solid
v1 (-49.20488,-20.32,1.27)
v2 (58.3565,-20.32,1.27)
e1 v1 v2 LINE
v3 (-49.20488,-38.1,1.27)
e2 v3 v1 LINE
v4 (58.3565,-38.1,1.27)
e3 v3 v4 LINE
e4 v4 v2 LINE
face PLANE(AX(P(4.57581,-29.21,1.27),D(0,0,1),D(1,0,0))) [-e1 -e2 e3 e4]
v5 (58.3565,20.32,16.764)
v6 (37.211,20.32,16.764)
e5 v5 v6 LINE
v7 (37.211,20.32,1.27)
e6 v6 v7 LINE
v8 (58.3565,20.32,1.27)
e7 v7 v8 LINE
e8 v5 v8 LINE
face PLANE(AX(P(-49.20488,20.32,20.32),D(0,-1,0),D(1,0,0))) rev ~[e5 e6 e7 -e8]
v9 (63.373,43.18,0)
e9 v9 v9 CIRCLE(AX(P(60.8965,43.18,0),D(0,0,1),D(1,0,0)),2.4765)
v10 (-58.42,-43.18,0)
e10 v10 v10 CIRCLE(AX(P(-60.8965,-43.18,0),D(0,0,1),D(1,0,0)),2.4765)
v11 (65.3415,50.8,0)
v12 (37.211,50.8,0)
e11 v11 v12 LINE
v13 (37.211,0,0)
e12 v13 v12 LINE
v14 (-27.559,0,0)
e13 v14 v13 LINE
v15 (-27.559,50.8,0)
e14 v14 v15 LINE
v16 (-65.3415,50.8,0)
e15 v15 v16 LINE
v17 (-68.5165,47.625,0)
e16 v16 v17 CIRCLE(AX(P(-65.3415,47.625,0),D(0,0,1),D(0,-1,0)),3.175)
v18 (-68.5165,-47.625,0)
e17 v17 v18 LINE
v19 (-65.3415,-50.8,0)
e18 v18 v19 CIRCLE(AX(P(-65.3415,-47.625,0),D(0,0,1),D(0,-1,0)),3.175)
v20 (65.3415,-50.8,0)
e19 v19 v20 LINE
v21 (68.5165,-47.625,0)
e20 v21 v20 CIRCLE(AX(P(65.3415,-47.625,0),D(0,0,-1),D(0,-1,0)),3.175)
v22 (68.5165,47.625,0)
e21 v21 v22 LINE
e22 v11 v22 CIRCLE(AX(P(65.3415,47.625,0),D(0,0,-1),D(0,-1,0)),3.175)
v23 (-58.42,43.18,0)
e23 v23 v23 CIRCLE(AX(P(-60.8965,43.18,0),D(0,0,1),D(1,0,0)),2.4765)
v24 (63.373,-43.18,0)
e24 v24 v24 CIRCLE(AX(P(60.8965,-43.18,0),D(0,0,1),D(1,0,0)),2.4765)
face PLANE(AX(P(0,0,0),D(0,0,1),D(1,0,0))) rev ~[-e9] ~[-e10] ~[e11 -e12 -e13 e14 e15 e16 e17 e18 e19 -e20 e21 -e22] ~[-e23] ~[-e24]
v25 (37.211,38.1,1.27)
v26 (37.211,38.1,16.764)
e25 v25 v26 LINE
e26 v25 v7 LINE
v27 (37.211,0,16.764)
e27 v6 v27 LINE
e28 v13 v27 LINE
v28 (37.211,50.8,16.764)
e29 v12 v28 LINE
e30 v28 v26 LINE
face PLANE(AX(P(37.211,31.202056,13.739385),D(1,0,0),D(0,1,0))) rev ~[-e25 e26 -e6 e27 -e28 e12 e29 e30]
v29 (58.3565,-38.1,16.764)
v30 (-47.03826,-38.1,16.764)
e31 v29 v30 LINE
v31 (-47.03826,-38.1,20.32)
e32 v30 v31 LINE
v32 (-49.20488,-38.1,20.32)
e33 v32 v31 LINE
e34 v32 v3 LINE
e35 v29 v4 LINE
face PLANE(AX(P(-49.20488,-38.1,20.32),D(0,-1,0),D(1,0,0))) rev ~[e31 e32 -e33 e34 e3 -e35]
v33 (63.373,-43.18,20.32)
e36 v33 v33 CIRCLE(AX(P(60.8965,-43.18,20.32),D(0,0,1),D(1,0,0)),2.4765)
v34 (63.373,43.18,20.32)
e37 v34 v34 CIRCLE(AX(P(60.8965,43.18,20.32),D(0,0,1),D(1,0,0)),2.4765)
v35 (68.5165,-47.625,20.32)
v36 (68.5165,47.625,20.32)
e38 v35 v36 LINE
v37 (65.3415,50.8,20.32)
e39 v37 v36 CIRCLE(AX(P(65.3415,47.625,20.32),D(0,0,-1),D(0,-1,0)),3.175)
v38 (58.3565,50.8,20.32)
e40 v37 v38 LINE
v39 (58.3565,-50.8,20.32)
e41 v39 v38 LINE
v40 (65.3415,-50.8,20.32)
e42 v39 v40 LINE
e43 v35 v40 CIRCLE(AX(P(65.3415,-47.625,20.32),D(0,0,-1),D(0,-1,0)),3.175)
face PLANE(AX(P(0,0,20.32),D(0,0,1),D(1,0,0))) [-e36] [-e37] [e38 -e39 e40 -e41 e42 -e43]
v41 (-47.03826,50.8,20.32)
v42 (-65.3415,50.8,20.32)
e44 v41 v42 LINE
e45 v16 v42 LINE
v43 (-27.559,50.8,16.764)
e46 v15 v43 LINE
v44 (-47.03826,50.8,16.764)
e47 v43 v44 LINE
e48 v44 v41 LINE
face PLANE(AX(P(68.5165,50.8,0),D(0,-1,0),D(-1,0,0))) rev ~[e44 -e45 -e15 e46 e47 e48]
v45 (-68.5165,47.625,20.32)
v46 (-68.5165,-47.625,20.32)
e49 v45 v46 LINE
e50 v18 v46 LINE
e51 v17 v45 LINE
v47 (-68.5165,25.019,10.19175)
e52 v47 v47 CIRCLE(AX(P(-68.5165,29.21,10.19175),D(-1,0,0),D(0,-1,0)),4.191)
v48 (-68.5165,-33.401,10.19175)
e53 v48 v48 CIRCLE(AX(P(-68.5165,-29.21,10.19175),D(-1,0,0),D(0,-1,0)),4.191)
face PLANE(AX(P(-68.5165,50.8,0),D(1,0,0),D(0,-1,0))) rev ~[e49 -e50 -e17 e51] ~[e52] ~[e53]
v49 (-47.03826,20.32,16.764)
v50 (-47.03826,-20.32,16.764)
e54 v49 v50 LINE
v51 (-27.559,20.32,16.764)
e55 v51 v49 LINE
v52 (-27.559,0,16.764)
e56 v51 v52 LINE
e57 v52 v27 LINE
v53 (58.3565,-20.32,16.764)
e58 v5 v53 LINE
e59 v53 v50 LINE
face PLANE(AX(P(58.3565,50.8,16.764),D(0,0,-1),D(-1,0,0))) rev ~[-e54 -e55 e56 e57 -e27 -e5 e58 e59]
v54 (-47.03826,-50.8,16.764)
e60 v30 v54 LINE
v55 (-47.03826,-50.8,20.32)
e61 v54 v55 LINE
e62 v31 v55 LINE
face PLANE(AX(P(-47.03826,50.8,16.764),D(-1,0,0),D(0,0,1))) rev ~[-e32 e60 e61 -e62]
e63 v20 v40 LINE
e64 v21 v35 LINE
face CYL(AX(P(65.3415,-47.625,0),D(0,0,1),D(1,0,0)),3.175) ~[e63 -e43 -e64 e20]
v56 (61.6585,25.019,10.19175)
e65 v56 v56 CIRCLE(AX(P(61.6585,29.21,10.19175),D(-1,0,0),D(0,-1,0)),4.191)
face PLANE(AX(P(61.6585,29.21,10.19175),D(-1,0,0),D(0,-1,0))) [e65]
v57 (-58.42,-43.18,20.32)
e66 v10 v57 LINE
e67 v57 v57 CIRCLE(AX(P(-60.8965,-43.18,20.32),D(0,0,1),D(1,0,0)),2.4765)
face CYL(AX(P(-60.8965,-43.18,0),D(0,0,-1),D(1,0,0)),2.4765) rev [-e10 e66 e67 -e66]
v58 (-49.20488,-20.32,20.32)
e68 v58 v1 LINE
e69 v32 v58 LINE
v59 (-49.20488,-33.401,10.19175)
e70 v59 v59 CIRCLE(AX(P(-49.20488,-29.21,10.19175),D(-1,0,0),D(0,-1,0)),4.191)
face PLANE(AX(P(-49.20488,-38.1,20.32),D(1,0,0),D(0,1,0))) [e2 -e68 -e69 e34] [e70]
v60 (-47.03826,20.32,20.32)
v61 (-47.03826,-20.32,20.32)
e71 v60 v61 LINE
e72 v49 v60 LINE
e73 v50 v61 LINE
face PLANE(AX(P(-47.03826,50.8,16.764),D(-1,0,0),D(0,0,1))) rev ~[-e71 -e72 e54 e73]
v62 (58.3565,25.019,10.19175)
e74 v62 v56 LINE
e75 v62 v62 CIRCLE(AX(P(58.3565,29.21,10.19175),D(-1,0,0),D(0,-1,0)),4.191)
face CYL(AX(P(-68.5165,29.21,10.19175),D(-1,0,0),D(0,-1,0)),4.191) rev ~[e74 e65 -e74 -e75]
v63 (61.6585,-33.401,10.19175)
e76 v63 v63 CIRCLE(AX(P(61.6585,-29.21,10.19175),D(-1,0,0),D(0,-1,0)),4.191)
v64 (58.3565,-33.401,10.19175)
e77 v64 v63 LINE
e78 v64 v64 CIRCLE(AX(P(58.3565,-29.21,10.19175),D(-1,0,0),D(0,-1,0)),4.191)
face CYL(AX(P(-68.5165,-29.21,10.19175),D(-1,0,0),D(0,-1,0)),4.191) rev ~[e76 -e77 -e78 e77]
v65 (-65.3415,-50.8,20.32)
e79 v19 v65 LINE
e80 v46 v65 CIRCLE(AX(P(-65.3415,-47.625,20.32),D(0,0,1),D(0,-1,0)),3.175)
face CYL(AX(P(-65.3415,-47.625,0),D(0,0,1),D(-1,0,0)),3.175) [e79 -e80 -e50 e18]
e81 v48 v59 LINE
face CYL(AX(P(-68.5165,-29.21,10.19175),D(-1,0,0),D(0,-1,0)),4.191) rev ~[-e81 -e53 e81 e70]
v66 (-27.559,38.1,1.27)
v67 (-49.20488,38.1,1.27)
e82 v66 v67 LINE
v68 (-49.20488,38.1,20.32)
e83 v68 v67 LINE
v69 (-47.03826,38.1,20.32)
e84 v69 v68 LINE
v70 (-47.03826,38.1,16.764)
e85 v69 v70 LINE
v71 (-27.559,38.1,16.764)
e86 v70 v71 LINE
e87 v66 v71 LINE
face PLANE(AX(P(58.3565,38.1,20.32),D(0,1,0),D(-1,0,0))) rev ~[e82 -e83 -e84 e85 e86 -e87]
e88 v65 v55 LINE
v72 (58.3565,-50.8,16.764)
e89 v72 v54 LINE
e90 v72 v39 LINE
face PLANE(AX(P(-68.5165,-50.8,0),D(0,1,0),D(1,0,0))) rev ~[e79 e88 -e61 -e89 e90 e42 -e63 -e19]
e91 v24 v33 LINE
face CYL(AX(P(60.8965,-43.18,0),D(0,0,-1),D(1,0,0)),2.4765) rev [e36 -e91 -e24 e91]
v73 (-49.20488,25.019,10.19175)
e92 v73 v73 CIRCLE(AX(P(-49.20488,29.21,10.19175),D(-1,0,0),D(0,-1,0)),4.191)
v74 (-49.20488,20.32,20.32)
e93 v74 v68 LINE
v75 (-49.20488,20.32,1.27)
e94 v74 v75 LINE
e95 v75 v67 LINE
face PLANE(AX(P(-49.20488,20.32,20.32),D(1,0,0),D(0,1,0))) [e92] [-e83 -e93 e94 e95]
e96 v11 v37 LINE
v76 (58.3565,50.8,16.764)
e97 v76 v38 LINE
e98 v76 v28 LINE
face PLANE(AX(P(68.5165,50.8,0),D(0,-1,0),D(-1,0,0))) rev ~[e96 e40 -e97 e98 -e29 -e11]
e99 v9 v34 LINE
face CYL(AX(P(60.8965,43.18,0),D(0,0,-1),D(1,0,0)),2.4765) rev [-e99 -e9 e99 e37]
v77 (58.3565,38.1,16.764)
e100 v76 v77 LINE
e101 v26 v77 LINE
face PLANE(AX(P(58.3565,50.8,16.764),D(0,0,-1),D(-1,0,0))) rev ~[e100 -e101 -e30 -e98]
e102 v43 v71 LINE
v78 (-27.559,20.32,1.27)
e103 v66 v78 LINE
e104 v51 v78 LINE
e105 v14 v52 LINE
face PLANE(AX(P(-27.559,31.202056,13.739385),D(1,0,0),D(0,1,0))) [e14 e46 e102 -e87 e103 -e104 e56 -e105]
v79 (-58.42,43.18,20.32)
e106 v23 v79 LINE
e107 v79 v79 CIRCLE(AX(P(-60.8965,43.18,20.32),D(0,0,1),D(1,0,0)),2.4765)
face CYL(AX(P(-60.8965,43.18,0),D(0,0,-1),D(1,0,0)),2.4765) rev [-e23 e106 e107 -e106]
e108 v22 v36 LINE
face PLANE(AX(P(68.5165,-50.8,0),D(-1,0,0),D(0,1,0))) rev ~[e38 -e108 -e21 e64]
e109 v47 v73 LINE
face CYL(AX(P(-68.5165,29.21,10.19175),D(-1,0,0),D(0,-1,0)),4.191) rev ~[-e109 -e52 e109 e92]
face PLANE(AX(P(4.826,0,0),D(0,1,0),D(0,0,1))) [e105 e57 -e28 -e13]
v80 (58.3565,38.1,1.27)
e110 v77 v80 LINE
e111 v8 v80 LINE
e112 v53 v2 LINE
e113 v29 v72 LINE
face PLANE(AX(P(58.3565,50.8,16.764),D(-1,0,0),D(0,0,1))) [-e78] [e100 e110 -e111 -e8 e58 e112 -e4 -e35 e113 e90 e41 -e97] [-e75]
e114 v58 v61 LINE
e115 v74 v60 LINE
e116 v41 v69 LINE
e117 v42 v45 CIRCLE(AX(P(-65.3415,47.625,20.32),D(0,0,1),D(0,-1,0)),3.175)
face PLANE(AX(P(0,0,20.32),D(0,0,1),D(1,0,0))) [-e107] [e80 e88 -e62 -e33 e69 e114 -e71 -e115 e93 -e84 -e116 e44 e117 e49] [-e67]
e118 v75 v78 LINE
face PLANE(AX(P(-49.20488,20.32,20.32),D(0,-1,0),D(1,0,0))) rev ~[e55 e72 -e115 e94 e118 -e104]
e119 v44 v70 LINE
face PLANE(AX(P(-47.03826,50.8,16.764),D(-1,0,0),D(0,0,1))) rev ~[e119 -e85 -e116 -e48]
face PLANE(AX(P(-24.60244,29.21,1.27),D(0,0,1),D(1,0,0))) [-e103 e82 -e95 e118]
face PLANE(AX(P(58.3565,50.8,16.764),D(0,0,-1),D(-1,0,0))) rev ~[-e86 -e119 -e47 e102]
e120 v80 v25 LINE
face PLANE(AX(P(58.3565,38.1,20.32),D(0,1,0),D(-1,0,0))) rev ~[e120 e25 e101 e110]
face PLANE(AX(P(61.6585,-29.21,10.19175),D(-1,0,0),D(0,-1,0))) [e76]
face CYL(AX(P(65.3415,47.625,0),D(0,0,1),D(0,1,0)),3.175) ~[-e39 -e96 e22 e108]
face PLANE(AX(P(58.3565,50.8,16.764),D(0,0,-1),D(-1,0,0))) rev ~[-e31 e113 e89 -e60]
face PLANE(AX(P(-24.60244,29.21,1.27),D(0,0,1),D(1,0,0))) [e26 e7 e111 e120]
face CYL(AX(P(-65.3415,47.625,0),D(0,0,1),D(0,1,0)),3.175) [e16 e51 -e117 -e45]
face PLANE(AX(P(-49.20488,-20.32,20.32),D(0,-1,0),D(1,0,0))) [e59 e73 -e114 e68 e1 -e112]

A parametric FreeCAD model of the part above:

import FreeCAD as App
import Part
import Sketcher

V = App.Vector
Q = App.Units.Quantity


def edges_at(feature, points):
    """Names of the edges that pass closest to the given points."""
    edges = feature.Shape.Edges
    near = lambda p: min(range(len(edges)), key=lambda i: edges[i].distToShape(Part.Vertex(*p))[0])
    return sorted({f"Edge{near(p) + 1}" for p in points})


def add_polygon(sketch, points):
    """Adds a closed chain of lines whose ends are joined by coincident constraints."""
    first, n = sketch.GeometryCount, len(points)
    for a, b in zip(points, points[1:] + points[:1]):
        sketch.addGeometry(Part.LineSegment(App.Vector(*a, 0), App.Vector(*b, 0)), False)
    for i in range(n):
        sketch.addConstraint(Sketcher.Constraint("Coincident", first + i, 2, first + (i + 1) % n, 1))

doc = App.newDocument("Part")
body = doc.addObject("PartDesign::Body", "Body")

sketch1 = body.newObject("Sketcher::SketchObject", "Sketch")
sketch1.AttachmentSupport = (doc.getObject("XY_Plane"), [""])
sketch1.MapMode = "FlatFace"
add_polygon(sketch1, [(68.5, 50.8), (-68.5, 50.8), (-68.5, -50.8), (68.5, -50.8)])
sketch1.addGeometry(Part.Circle(V(-60.9, -43.2, 0), V(0, 0, 1), 2.5), False)
sketch1.addGeometry(Part.Circle(V(60.9, -43.2, 0), V(0, 0, 1), 2.5), False)
sketch1.addGeometry(Part.Circle(V(-60.9, 43.2, 0), V(0, 0, 1), 2.5), False)
sketch1.addGeometry(Part.Circle(V(60.9, 43.2, 0), V(0, 0, 1), 2.5), False)
sketch1.addConstraint([
    Sketcher.Constraint("Horizontal", 0),
    Sketcher.Constraint("Vertical", 1),
    Sketcher.Constraint("Horizontal", 2),
    Sketcher.Constraint("Vertical", 3),
    Sketcher.Constraint("Equal", 4, 5),
    Sketcher.Constraint("Equal", 5, 6),
    Sketcher.Constraint("Equal", 6, 7),
    Sketcher.Constraint("Symmetric", 5, 3, 6, 3, -1, 1),
    Sketcher.Constraint("Symmetric", 4, 3, 7, 3, -1, 1),
    Sketcher.Constraint("Symmetric", 0, 2, 2, 2, -1, 1),
    Sketcher.Constraint("Symmetric", 4, 3, 5, 3, -2),
    Sketcher.Constraint("DistanceY", 1, 2, 1, 1, Q("4 in")),
    Sketcher.Constraint("Diameter", 4, Q("0.195 in")),
    Sketcher.Constraint("DistanceY", 4, 3, -1, 1, Q("1.7 in")),
    Sketcher.Constraint("DistanceX", 0, 2, 6, 3, Q("0.3 in")),
    Sketcher.Constraint("DistanceX", 0, 2, 0, 1, Q("5.395 in")),
])
pad1 = body.newObject("PartDesign::Pad", "Pad")
pad1.Profile = sketch1
pad1.Length = Q("0.8 in")

sketch2 = body.newObject("Sketcher::SketchObject", "Sketch001")
sketch2.AttachmentSupport = (doc.getObject("XZ_Plane"), [""])
sketch2.MapMode = "FlatFace"
sketch2.AttachmentOffset = App.Placement(V(0, 0, -2 * 25.4), App.Rotation())
add_polygon(sketch2, [(58.4, 20.3), (58.4, 16.8), (-47, 16.8), (-47, 20.3)])
sketch2.addConstraint([
    Sketcher.Constraint("Vertical", 0),
    Sketcher.Constraint("Horizontal", 1),
    Sketcher.Constraint("Vertical", 2),
    Sketcher.Constraint("Horizontal", 3),
    Sketcher.Constraint("DistanceY", 0, 2, 0, 1, Q("0.14 in")),
    Sketcher.Constraint("DistanceY", -1, 1, 2, 2, Q("0.8 in")),
    Sketcher.Constraint("DistanceX", 1, 2, 1, 1, Q("4.1494 in")),
    Sketcher.Constraint("DistanceX", -1, 1, 0, 2, Q("2.2975 in")),
])
pocket1 = body.newObject("PartDesign::Pocket", "Pocket")
pocket1.Profile = sketch2
pocket1.Length = Q("5.18 in")
pocket1.Reversed = True
doc.recompute()

fillet = body.newObject("PartDesign::Fillet", "Fillet")
fillet.Base = (pocket1, edges_at(pocket1, [
    (68.516, 50.8, 10.16),
    (-68.516, 50.8, 10.16),
    (-68.516, -50.8, 10.16),
    (68.516, -50.8, 10.16),
]))
fillet.Radius = Q("0.125 in")

sketch3 = body.newObject("Sketcher::SketchObject", "Sketch002")
sketch3.AttachmentSupport = (doc.getObject("YZ_Plane"), [""])
sketch3.MapMode = "FlatFace"
sketch3.AttachmentOffset = App.Placement(V(0, 0, 0.19 * 25.4), App.Rotation())
add_polygon(sketch3, [(0, 27), (0, 0), (62, 0), (62, 27)])
sketch3.addConstraint([
    Sketcher.Constraint("Vertical", 0),
    Sketcher.Constraint("Horizontal", 1),
    Sketcher.Constraint("Vertical", 2),
    Sketcher.Constraint("Horizontal", 3),
    Sketcher.Constraint("Coincident", 0, 2, -1, 1),
    Sketcher.Constraint("DistanceX", 1, 1, 1, 2, Q("62.404111 mm")),
    Sketcher.Constraint("DistanceY", 0, 2, 0, 1, Q("27.47877 mm")),
])
pocket2 = body.newObject("PartDesign::Pocket", "Pocket001")
pocket2.Profile = sketch3
pocket2.Length = Q("2.55 in")
pocket2.Midplane = True

sketch4 = body.newObject("Sketcher::SketchObject", "Sketch003")
sketch4.AttachmentSupport = (doc.getObject("XY_Plane"), [""])
sketch4.MapMode = "FlatFace"
sketch4.AttachmentOffset = App.Placement(V(0, 0, 0.8 * 25.4), App.Rotation())
add_polygon(sketch4, [(-49, 38), (-49, 20), (58, 20), (58, 38)])
add_polygon(sketch4, [(-49, -20), (-49, -38), (58, -38), (58, -20)])
sketch4.addConstraint([
    Sketcher.Constraint("Vertical", 0),
    Sketcher.Constraint("Horizontal", 1),
    Sketcher.Constraint("Vertical", 2),
    Sketcher.Constraint("Horizontal", 3),
    Sketcher.Constraint("Vertical", 4),
    Sketcher.Constraint("Horizontal", 5),
    Sketcher.Constraint("Vertical", 6),
    Sketcher.Constraint("Horizontal", 7),
    Sketcher.Constraint("Symmetric", 3, 2, 4, 2, -1),
    Sketcher.Constraint("Symmetric", 1, 2, 6, 2, -1),
    Sketcher.Constraint("DistanceY", 0, 2, 0, 1, Q("0.7 in")),
    Sketcher.Constraint("DistanceY", 4, 2, 3, 2, Q("3 in")),
    Sketcher.Constraint("DistanceX", 1, 1, 1, 2, Q("4.2347 in")),
    Sketcher.Constraint("DistanceX", 0, 2, -1, 1, Q("1.9372 in")),
])
pocket3 = body.newObject("PartDesign::Pocket", "Pocket002")
pocket3.Profile = sketch4
pocket3.Length = Q("0.75 in")

sketch5 = body.newObject("Sketcher::SketchObject", "Sketch004")
sketch5.AttachmentSupport = (doc.getObject("YZ_Plane"), [""])
sketch5.MapMode = "FlatFace"
sketch5.AttachmentOffset = App.Placement(V(0, 0, -2.6975 * 25.4), App.Rotation())
sketch5.addGeometry([
    Part.Circle(V(29.2, 10.2, 0), V(0, 0, 1), 4.2),
    Part.Circle(V(-29.2, 10.2, 0), V(0, 0, 1), 4.2),
], False)
sketch5.addConstraint([
    Sketcher.Constraint("Equal", 0, 1),
    Sketcher.Constraint("Symmetric", 0, 3, 1, 3, -2),
    Sketcher.Constraint("Diameter", 0, Q("0.33 in")),
    Sketcher.Constraint("DistanceX", 1, 3, 0, 3, Q("2.3 in")),
    Sketcher.Constraint("DistanceY", -1, 1, 0, 3, Q("10.19175 mm")),
])
pocket4 = body.newObject("PartDesign::Pocket", "Pocket003")
pocket4.Profile = sketch5
pocket4.Length = Q("5.125 in")
pocket4.Reversed = True

doc.recompute()
